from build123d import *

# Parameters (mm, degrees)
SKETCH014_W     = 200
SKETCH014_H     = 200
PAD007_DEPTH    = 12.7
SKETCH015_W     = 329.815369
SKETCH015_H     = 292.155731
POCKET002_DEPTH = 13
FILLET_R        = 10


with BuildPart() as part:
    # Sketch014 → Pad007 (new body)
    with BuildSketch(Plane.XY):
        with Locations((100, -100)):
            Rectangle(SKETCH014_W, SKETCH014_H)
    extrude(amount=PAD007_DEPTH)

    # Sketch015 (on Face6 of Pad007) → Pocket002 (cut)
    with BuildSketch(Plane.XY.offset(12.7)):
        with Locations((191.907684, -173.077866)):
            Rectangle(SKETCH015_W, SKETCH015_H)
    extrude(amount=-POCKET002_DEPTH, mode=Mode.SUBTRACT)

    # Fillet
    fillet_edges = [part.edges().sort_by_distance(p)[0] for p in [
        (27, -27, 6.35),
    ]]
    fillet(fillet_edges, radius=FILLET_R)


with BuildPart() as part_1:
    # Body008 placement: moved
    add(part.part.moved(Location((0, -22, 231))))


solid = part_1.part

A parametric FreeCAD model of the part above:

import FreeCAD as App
import Part
import Sketcher

V = App.Vector
Q = App.Units.Quantity


def edges_at(feature, points):
    """Names of the edges that pass closest to the given points."""
    edges = feature.Shape.Edges
    near = lambda p: min(range(len(edges)), key=lambda i: edges[i].distToShape(Part.Vertex(*p))[0])
    return sorted({f"Edge{near(p) + 1}" for p in points})


def add_polygon(sketch, points):
    """Adds a closed chain of lines whose ends are joined by coincident constraints."""
    first, n = sketch.GeometryCount, len(points)
    for a, b in zip(points, points[1:] + points[:1]):
        sketch.addGeometry(Part.LineSegment(App.Vector(*a, 0), App.Vector(*b, 0)), False)
    for i in range(n):
        sketch.addConstraint(Sketcher.Constraint("Coincident", first + i, 2, first + (i + 1) % n, 1))

doc = App.newDocument("Part")
params = doc.addObject("Spreadsheet::Sheet", "Params")
for row, (alias, value) in enumerate([
    ("sketch1_width", "200 mm"),
    ("pad1_length", "12.7 mm"),
    ("pocket1_length", "13 mm"),
    ("fillet_radius", "10 mm"),
], start=1):
    params.set(f"A{row}", alias)
    params.set(f"B{row}", "=" + value)
    params.setAlias(f"B{row}", alias)

body = doc.addObject("PartDesign::Body", "Body")

sketch1 = body.newObject("Sketcher::SketchObject", "Sketch")
sketch1.AttachmentSupport = (doc.getObject("XY_Plane"), [""])
sketch1.MapMode = "FlatFace"
add_polygon(sketch1, [(0, 0), (0, -200), (200, -200), (200, 0)])
sketch1.addConstraint(Sketcher.Constraint("Vertical", 0))
sketch1.addConstraint(Sketcher.Constraint("Horizontal", 1))
sketch1.addConstraint(Sketcher.Constraint("Vertical", 2))
sketch1.addConstraint(Sketcher.Constraint("Horizontal", 3))
sketch1.addConstraint(Sketcher.Constraint("Coincident", 3, 2, -1, 1))
sketch1.addConstraint(Sketcher.Constraint("Equal", 3, 0))
sketch1.addConstraint(Sketcher.Constraint("DistanceX", 1, 1, 1, 2, Q("200 mm")))
sketch1.setExpression("Constraints[10]", "Params.sketch1_width")
pad1 = body.newObject("PartDesign::Pad", "Pad")
pad1.Profile = sketch1
pad1.setExpression("Length", "Params.pad1_length")

sketch2 = body.newObject("Sketcher::SketchObject", "Sketch001")
sketch2.AttachmentSupport = (doc.getObject("XY_Plane"), [""])
sketch2.MapMode = "FlatFace"
sketch2.AttachmentOffset = App.Placement(V(0, 0, 12.7), App.Rotation())
add_polygon(sketch2, [(27, -27), (27, -319.155732), (356.815368, -319.155732), (356.815368, -27)])
sketch2.addConstraint(Sketcher.Constraint("Vertical", 0))
sketch2.addConstraint(Sketcher.Constraint("Horizontal", 1))
sketch2.addConstraint(Sketcher.Constraint("Vertical", 2))
sketch2.addConstraint(Sketcher.Constraint("Horizontal", 3))
sketch2.addConstraint(Sketcher.Constraint("DistanceX", -1, 1, 0, 2, Q("27 mm")))
sketch2.addConstraint(Sketcher.Constraint("DistanceY", 2, 2, -1, 1, Q("27 mm")))
sketch2.addConstraint(Sketcher.Constraint("DistanceX", 1, 1, 1, 2, Q("329.815369 mm")))
sketch2.addConstraint(Sketcher.Constraint("DistanceY", 0, 2, 0, 1, Q("292.155731 mm")))
pocket1 = body.newObject("PartDesign::Pocket", "Pocket")
pocket1.Profile = sketch2
pocket1.setExpression("Length", "Params.pocket1_length")
doc.recompute()

fillet = body.newObject("PartDesign::Fillet", "Fillet")
fillet.Base = (pocket1, edges_at(pocket1, [(27, -27, 6.35)]))
fillet.setExpression("Radius", "Params.fillet_radius")
body2 = doc.addObject("PartDesign::Body", "Body001")
doc.recompute()

body.Placement = App.Placement(V(0, -22, 231), App.Rotation(V(0, 0, 1), 0))
boolean = body2.newObject("PartDesign::Boolean", "Boolean")
boolean.Type = "Fuse"
boolean.addObjects([body])

doc.recompute()
